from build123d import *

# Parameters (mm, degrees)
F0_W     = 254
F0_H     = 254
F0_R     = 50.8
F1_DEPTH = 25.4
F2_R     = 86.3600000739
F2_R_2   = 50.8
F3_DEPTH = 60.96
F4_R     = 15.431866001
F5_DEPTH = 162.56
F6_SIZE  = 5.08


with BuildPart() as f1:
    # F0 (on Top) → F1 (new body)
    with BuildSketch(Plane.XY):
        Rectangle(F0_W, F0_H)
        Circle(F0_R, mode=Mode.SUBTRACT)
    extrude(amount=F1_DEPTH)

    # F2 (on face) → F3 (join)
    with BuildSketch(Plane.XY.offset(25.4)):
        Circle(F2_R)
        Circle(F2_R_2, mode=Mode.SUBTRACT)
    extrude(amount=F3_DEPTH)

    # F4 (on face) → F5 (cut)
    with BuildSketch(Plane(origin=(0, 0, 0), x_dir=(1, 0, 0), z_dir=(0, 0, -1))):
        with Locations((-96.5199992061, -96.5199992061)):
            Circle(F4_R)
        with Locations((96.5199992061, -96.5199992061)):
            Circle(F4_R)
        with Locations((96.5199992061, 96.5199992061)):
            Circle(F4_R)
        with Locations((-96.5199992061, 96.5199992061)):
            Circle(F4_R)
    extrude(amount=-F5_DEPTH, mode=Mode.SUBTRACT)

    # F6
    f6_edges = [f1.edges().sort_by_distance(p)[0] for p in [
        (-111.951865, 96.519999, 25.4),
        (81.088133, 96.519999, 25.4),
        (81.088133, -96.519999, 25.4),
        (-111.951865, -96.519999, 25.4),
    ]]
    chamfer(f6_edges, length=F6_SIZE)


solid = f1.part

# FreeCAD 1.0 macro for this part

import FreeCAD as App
import Part
import Sketcher
Q = App.Units.Quantity


def edges_at(feature, points):
    """Names of the edges that pass closest to the given points."""
    edges = feature.Shape.Edges
    near = lambda p: min(range(len(edges)), key=lambda i: edges[i].distToShape(Part.Vertex(*p))[0])
    return sorted({f"Edge{near(p) + 1}" for p in points})

doc = App.newDocument("Part")
body = doc.addObject("PartDesign::Body", "Body")

sketch1 = doc.addObject("Sketcher::SketchObject", "Sketch")
body.addObject(sketch1)
sketch1.AttachmentSupport = (doc.XY_Plane, [""])
sketch1.MapMode = "FlatFace"
sketch1.addGeometry([
    Part.LineSegment(App.Vector(-127, 127, 0), App.Vector(-127, -127, 0)),
    Part.LineSegment(App.Vector(-127, -127, 0), App.Vector(127, -127, 0)),
    Part.LineSegment(App.Vector(127, -127, 0), App.Vector(127, 127, 0)),
    Part.LineSegment(App.Vector(127, 127, 0), App.Vector(-127, 127, 0)),
    Part.Circle(App.Vector(0, 0, 0), App.Vector(0, 0, 1), 51),
], False)
sketch1.addConstraint([
    Sketcher.Constraint("Coincident", 0, 2, 1, 1),
    Sketcher.Constraint("Coincident", 1, 2, 2, 1),
    Sketcher.Constraint("Coincident", 2, 2, 3, 1),
    Sketcher.Constraint("Coincident", 3, 2, 0, 1),
    Sketcher.Constraint("Vertical", 0),
    Sketcher.Constraint("Horizontal", 1),
    Sketcher.Constraint("Vertical", 2),
    Sketcher.Constraint("Horizontal", 3),
    Sketcher.Constraint("Coincident", 4, 3, -1, 1),
    Sketcher.Constraint("Symmetric", 0, 2, 2, 2, -1, 1),
    Sketcher.Constraint("Equal", 3, 0),
    Sketcher.Constraint("Diameter", 4, Q("4 in")),
    Sketcher.Constraint("DistanceX", 1, 1, 1, 2, Q("10 in")),
])
pad1 = doc.addObject("PartDesign::Pad", "Pad")
body.addObject(pad1)
pad1.Profile = sketch1
pad1.Length = Q("1 in")

sketch2 = doc.addObject("Sketcher::SketchObject", "Sketch001")
body.addObject(sketch2)
sketch2.AttachmentSupport = (doc.XY_Plane, [""])
sketch2.MapMode = "FlatFace"
sketch2.AttachmentOffset = App.Placement(App.Vector(0, 0, 1 * 25.4), App.Rotation())
sketch2.addGeometry([
    Part.Circle(App.Vector(0, 0, 0), App.Vector(0, 0, 1), 86),
    Part.Circle(App.Vector(0, 0, 0), App.Vector(0, 0, 1), 51),
], False)
sketch2.addConstraint([
    Sketcher.Constraint("Coincident", 0, 3, -1, 1),
    Sketcher.Constraint("Coincident", 1, 3, -1, 1),
    Sketcher.Constraint("Diameter", 1, Q("4 in")),
    Sketcher.Constraint("Diameter", 0, Q("6.8 in")),
])
pad2 = doc.addObject("PartDesign::Pad", "Pad001")
body.addObject(pad2)
pad2.Profile = sketch2
pad2.Length = Q("2.4 in")

sketch3 = doc.addObject("Sketcher::SketchObject", "Sketch002")
body.addObject(sketch3)
sketch3.AttachmentSupport = (doc.XY_Plane, [""])
sketch3.MapMode = "FlatFace"
sketch3.addGeometry([
    Part.Circle(App.Vector(-97, 97, 0), App.Vector(0, 0, 1), 15),
    Part.Circle(App.Vector(97, 97, 0), App.Vector(0, 0, 1), 15),
    Part.Circle(App.Vector(97, -97, 0), App.Vector(0, 0, 1), 15),
    Part.Circle(App.Vector(-97, -97, 0), App.Vector(0, 0, 1), 15),
], False)
sketch3.addConstraint([
    Sketcher.Constraint("Equal", 0, 1),
    Sketcher.Constraint("Equal", 1, 2),
    Sketcher.Constraint("Equal", 2, 3),
    Sketcher.Constraint("Symmetric", 0, 3, 2, 3, -1, 1),
    Sketcher.Constraint("Symmetric", 1, 3, 3, 3, -1, 1),
    Sketcher.Constraint("Symmetric", 0, 3, 1, 3, -2),
    Sketcher.Constraint("DistanceX", 0, 3, -1, 1, Q("3.8 in")),
    Sketcher.Constraint("DistanceY", -1, 1, 0, 3, Q("3.8 in")),
    Sketcher.Constraint("Diameter", 0, 30.863732),
])
pocket1 = doc.addObject("PartDesign::Pocket", "Pocket")
body.addObject(pocket1)
pocket1.Profile = sketch3
pocket1.Length = Q("6.4 in")
pocket1.Reversed = True
doc.recompute()

chamfer = doc.addObject("PartDesign::Chamfer", "Chamfer")
body.addObject(chamfer)
chamfer.Base = (pocket1, edges_at(pocket1, [
    (-111.952, 96.52, 25.4),
    (81.088, 96.52, 25.4),
    (81.088, -96.52, 25.4),
    (-111.952, -96.52, 25.4),
]))
chamfer.Size = Q("0.2 in")

doc.recompute()
